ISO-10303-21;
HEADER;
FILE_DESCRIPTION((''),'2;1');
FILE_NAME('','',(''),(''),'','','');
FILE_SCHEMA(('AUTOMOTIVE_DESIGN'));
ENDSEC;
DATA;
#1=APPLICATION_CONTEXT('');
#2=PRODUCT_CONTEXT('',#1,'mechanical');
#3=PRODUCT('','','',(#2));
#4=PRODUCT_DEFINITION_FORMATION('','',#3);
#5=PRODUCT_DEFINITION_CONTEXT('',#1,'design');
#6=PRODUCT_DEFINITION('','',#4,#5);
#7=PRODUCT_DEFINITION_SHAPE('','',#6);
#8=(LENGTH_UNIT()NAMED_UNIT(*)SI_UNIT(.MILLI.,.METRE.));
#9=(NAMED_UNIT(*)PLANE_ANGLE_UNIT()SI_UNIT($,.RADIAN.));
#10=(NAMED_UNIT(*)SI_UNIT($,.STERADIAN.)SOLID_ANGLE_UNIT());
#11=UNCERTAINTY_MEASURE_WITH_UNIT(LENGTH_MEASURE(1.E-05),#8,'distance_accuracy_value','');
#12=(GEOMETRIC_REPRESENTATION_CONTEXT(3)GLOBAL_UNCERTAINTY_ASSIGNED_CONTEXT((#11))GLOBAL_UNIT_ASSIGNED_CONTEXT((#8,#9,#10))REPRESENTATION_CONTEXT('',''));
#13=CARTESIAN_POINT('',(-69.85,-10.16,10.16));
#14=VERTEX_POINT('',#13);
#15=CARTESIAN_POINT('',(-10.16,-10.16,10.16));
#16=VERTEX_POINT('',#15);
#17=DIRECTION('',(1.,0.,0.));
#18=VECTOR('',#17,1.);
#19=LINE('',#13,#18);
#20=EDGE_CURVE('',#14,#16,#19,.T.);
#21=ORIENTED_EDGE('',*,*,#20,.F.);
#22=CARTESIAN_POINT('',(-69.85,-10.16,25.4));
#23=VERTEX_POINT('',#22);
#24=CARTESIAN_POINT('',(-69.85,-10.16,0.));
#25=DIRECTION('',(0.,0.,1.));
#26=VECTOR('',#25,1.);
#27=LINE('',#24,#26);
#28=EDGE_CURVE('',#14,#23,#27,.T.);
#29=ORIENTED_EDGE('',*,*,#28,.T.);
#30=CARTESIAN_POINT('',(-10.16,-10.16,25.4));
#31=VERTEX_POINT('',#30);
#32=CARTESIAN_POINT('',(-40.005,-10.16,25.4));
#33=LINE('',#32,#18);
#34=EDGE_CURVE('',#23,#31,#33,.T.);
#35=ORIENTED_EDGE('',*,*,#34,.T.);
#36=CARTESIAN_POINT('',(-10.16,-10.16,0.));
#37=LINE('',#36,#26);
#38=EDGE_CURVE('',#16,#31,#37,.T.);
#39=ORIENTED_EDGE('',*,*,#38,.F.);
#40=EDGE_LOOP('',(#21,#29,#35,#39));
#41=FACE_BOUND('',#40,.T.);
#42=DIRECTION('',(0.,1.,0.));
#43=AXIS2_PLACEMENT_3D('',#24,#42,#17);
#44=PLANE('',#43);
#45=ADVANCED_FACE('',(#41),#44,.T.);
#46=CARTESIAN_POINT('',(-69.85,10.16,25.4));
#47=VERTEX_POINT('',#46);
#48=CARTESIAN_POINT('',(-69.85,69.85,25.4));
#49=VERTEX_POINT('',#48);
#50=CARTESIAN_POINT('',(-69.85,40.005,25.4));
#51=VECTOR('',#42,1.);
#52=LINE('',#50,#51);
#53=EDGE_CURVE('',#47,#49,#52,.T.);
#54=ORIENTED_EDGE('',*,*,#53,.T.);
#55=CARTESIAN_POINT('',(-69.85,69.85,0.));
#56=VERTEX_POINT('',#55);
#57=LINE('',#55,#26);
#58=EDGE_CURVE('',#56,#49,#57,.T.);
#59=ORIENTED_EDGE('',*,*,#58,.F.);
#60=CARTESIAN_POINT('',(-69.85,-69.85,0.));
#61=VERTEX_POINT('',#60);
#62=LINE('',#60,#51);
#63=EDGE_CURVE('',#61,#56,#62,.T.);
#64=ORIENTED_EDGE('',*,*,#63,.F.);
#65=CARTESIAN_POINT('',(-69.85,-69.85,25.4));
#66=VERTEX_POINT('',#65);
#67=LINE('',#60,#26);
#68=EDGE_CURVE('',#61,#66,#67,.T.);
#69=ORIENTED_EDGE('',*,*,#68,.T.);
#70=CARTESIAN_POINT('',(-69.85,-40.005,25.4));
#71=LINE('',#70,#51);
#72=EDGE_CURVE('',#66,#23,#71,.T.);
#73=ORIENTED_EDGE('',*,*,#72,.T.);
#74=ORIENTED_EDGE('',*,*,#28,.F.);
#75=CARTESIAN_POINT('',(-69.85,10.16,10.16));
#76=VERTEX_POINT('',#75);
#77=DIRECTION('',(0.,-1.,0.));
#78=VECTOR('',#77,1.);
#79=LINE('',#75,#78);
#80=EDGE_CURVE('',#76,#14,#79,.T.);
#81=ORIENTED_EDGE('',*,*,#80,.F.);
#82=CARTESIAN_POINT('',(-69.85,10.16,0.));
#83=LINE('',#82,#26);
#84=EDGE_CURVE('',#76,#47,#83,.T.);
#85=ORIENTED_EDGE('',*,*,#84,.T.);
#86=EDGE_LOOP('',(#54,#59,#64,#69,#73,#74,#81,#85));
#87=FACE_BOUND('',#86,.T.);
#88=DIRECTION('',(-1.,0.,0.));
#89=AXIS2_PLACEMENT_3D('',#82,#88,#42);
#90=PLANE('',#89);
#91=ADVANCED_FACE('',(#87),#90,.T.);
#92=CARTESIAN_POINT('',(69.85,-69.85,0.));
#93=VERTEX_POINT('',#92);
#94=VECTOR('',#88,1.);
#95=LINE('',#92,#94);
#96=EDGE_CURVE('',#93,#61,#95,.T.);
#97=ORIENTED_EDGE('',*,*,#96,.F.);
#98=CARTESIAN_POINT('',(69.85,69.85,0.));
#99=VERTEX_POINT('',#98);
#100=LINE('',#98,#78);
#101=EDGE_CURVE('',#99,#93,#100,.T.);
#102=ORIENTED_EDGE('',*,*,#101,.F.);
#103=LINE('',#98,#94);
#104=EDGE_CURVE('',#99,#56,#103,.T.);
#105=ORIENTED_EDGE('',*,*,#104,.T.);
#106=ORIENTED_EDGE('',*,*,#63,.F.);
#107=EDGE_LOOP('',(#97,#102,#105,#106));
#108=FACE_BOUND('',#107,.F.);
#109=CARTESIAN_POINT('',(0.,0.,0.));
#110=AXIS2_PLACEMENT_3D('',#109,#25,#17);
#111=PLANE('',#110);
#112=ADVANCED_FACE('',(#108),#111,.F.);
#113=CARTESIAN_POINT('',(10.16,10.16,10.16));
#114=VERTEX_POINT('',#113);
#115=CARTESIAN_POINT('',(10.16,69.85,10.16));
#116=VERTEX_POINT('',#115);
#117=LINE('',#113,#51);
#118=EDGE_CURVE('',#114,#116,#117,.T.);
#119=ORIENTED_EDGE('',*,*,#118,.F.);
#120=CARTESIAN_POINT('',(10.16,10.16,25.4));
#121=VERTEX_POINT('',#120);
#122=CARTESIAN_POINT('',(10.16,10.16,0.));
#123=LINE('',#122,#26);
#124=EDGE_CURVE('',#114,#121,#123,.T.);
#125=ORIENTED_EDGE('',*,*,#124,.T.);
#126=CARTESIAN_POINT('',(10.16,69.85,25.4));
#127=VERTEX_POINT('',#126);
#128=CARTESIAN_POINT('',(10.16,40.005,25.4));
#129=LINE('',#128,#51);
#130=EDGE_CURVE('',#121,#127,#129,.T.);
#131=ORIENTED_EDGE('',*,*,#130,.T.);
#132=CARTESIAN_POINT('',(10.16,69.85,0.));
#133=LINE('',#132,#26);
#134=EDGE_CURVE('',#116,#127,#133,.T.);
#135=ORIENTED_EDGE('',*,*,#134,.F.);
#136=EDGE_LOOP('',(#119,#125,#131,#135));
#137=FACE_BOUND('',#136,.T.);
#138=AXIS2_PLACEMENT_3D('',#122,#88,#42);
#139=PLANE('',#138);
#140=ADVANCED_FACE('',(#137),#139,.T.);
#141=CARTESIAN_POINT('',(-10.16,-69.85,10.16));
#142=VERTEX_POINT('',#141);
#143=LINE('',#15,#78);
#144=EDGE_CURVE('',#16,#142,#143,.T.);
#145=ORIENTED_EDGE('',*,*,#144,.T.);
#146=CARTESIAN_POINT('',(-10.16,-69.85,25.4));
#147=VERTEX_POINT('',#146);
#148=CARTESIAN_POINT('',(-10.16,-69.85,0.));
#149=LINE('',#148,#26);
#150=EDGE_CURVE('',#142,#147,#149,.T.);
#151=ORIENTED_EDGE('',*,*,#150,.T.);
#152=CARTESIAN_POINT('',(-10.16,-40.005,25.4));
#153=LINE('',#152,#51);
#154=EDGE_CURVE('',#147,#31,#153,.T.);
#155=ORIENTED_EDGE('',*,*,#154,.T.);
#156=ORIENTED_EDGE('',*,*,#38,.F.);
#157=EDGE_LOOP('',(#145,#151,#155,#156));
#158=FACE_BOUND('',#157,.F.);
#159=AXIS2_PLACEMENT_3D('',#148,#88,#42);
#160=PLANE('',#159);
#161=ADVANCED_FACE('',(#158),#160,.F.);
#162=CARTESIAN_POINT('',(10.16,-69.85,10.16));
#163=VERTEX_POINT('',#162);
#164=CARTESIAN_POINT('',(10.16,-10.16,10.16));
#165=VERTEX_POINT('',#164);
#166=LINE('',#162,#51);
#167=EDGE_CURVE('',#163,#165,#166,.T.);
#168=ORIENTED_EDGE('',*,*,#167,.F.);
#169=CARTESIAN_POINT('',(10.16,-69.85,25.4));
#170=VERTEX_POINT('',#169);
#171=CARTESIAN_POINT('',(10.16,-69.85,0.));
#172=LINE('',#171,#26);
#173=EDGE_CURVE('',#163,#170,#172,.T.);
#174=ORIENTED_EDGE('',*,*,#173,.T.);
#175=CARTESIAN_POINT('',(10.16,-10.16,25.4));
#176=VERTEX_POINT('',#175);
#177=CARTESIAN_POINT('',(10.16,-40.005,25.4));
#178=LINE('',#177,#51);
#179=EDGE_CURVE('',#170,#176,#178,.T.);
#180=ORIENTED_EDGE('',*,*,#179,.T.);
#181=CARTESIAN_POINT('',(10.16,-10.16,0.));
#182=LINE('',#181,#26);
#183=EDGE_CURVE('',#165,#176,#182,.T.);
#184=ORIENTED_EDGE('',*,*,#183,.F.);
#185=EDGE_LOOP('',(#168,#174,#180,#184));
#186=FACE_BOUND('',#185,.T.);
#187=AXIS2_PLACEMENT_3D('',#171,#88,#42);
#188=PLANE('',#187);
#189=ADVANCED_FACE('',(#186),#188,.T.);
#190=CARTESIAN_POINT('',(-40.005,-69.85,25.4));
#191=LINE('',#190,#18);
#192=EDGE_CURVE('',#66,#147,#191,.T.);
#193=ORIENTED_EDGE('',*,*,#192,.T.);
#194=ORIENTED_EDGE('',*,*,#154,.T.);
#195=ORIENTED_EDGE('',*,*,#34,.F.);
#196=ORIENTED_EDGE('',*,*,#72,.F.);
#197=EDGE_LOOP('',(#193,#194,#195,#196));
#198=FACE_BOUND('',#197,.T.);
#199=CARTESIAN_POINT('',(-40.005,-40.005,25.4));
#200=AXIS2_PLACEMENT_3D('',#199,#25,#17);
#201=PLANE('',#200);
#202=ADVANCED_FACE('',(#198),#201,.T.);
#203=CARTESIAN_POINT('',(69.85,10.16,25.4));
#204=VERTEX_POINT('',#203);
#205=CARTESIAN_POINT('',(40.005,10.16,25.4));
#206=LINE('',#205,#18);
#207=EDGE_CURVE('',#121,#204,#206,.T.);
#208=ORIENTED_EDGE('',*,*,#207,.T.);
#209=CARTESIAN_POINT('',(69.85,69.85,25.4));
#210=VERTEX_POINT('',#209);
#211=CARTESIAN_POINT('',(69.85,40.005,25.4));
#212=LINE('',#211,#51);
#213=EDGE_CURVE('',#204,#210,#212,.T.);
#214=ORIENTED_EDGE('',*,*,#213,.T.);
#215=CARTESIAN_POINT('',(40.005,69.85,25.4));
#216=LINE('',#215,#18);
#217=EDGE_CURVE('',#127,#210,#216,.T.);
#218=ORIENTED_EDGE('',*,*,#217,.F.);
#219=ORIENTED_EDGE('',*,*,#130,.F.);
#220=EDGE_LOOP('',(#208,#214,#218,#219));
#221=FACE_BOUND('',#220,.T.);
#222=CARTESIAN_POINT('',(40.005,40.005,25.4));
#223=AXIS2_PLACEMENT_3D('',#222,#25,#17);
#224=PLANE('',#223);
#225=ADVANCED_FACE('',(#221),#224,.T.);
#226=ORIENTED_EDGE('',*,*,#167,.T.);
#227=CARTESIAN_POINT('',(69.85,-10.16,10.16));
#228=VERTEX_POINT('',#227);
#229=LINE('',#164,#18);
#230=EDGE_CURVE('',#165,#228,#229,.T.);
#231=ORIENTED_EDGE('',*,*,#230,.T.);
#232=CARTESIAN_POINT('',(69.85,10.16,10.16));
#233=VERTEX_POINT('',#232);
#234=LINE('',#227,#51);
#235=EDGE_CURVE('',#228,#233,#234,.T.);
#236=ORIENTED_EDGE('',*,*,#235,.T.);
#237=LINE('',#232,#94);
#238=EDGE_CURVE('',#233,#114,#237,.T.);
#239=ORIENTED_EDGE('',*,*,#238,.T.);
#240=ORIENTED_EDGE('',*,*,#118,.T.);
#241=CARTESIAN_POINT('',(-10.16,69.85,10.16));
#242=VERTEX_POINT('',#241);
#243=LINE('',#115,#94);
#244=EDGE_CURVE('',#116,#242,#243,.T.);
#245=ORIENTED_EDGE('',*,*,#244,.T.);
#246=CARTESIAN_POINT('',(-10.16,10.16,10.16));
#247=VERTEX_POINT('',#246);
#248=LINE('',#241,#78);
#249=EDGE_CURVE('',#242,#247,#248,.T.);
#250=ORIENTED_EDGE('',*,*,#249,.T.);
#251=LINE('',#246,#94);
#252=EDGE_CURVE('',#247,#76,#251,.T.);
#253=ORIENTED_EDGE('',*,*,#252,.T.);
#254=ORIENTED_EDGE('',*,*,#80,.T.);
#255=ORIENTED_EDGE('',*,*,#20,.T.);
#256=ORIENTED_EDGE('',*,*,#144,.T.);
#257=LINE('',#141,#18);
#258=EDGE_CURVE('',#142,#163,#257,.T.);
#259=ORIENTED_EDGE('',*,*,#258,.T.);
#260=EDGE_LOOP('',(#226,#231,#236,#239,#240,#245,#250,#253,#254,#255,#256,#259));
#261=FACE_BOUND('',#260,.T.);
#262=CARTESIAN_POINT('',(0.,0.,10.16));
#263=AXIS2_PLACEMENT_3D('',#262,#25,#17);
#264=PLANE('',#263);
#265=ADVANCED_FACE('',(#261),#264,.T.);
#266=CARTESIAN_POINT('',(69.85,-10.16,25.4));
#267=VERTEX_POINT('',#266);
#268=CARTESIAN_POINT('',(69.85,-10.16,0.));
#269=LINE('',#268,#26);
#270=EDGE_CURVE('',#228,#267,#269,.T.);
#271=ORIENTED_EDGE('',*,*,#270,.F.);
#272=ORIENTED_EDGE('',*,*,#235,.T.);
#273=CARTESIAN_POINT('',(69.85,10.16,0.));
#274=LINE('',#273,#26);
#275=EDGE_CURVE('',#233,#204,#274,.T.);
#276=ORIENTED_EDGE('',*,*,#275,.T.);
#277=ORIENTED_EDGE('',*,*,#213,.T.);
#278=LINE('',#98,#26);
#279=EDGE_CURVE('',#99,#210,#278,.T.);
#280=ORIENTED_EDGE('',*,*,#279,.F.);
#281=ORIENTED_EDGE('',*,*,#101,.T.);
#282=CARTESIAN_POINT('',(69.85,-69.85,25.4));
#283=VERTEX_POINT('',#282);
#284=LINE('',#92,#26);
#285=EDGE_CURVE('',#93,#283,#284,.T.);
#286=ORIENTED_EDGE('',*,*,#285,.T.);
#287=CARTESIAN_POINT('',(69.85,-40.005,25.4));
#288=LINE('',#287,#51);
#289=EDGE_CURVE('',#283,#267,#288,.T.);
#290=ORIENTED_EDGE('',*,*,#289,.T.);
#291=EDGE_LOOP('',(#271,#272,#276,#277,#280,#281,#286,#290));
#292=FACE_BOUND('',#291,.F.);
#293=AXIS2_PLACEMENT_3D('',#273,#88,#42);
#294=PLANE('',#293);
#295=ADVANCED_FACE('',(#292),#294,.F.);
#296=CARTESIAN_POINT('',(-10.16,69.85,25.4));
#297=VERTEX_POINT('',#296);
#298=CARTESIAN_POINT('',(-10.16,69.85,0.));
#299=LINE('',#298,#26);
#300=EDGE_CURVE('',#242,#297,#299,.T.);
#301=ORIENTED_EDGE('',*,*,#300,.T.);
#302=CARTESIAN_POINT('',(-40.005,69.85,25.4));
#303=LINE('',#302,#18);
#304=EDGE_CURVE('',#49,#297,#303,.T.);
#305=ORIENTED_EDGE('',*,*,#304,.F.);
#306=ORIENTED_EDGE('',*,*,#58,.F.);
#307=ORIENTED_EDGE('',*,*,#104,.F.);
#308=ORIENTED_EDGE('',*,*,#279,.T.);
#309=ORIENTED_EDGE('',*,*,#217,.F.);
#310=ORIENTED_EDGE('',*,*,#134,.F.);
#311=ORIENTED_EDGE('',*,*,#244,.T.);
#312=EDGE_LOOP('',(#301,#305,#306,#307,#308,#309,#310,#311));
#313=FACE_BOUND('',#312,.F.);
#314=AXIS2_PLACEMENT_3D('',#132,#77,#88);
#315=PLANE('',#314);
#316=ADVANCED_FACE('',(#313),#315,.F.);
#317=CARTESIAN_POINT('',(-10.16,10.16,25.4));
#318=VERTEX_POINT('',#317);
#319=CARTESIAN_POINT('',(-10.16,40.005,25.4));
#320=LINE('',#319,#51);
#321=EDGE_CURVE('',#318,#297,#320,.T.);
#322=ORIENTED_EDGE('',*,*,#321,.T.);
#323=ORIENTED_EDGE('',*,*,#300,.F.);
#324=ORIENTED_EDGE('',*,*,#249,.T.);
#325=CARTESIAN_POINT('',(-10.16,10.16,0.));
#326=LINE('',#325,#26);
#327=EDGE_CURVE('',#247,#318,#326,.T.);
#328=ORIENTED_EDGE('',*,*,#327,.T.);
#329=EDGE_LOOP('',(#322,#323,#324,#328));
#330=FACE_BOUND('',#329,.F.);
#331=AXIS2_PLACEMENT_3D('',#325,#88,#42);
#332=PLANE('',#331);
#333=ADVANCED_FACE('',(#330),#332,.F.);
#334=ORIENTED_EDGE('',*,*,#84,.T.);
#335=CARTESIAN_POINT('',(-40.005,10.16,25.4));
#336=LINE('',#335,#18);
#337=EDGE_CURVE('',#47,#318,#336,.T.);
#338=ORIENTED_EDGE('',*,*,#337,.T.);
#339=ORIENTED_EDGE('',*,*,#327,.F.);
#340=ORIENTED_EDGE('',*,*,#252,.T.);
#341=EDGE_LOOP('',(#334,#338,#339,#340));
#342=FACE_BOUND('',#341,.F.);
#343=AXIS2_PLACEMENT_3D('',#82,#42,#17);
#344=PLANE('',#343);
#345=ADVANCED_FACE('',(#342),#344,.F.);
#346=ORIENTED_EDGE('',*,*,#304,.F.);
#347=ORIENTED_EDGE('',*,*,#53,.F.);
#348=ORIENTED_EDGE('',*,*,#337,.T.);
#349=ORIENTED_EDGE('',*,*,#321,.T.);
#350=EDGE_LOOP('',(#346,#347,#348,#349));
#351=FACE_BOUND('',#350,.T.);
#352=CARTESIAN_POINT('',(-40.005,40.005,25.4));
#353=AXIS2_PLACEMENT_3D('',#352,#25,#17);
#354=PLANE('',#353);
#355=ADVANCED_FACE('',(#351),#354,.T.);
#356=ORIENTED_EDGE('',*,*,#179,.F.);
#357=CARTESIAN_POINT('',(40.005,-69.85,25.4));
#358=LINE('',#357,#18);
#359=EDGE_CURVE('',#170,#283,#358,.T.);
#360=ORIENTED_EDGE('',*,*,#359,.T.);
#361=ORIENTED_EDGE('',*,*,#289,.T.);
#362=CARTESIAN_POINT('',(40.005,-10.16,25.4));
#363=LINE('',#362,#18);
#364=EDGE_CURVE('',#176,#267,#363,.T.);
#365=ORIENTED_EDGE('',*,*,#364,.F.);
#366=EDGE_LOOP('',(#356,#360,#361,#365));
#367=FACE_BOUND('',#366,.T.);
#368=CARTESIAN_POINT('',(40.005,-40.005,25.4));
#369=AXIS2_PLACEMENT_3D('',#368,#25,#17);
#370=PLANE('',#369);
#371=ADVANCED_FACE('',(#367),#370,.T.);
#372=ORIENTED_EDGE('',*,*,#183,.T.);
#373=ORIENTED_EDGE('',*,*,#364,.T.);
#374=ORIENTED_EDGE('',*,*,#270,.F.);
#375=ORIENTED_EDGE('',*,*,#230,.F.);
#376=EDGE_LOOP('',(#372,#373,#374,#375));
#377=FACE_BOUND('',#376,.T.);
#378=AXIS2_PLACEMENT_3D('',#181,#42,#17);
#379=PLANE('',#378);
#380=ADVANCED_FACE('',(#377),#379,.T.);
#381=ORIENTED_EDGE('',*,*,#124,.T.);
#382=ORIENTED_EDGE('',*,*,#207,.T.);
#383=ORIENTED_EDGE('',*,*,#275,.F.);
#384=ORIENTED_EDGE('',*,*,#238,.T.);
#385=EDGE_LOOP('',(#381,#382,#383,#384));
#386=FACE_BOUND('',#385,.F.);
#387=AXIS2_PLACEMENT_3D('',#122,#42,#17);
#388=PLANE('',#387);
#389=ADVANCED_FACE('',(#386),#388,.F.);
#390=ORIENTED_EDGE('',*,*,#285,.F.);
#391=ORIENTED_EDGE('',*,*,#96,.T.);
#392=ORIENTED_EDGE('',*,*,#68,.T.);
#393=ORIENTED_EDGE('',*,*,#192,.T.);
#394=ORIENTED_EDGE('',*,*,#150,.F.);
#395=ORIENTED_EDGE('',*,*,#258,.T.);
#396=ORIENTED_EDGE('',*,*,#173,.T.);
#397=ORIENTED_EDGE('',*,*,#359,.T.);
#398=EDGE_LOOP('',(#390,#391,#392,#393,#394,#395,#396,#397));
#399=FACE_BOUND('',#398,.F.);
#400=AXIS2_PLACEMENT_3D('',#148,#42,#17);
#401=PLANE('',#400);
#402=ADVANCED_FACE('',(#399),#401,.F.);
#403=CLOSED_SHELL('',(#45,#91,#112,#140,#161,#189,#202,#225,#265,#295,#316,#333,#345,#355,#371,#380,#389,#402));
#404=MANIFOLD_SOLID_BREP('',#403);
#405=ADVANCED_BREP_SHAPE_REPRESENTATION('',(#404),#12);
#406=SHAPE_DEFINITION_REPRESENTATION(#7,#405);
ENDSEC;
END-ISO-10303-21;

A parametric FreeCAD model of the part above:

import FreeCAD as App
import Part
import Sketcher

V = App.Vector
Q = App.Units.Quantity

doc = App.newDocument("Part")
body = doc.addObject("PartDesign::Body", "Body")

sketch1 = body.newObject("Sketcher::SketchObject", "Sketch")
sketch1.AttachmentSupport = (doc.getObject("XY_Plane"), [""])
sketch1.MapMode = "FlatFace"
sketch1.addGeometry([
    Part.LineSegment(V(10, 70, 0), V(10, 10, 0)),
    Part.LineSegment(V(10, 10, 0), V(70, 10, 0)),
    Part.LineSegment(V(70, 10, 0), V(70, 70, 0)),
    Part.LineSegment(V(70, 70, 0), V(10, 70, 0)),
], False)
sketch1.addConstraint([
    Sketcher.Constraint("Coincident", 0, 2, 1, 1),
    Sketcher.Constraint("Coincident", 1, 2, 2, 1),
    Sketcher.Constraint("Coincident", 2, 2, 3, 1),
    Sketcher.Constraint("Coincident", 3, 2, 0, 1),
    Sketcher.Constraint("Vertical", 0),
    Sketcher.Constraint("Horizontal", 1),
    Sketcher.Constraint("Vertical", 2),
    Sketcher.Constraint("Horizontal", 3),
    Sketcher.Constraint("Equal", 3, 0),
    Sketcher.Constraint("DistanceX", 1, 1, 1, 2, Q("2.35 in")),
    Sketcher.Constraint("DistanceX", -1, 1, 0, 2, Q("0.4 in")),
    Sketcher.Constraint("DistanceY", -1, 1, 0, 2, Q("0.4 in")),
])
pad1 = body.newObject("PartDesign::Pad", "Pad")
pad1.Profile = sketch1
pad1.Length = Q("1 in")
body2 = doc.addObject("PartDesign::Body", "Body001")

sketch2 = body2.newObject("Sketcher::SketchObject", "Sketch001")
sketch2.AttachmentSupport = (doc.getObject("XY_Plane001"), [""])
sketch2.MapMode = "FlatFace"
sketch2.addGeometry([
    Part.LineSegment(V(10, -10, 0), V(10, -70, 0)),
    Part.LineSegment(V(10, -70, 0), V(70, -70, 0)),
    Part.LineSegment(V(70, -70, 0), V(70, -10, 0)),
    Part.LineSegment(V(70, -10, 0), V(10, -10, 0)),
], False)
sketch2.addConstraint([
    Sketcher.Constraint("Coincident", 0, 2, 1, 1),
    Sketcher.Constraint("Coincident", 1, 2, 2, 1),
    Sketcher.Constraint("Coincident", 2, 2, 3, 1),
    Sketcher.Constraint("Coincident", 3, 2, 0, 1),
    Sketcher.Constraint("Vertical", 0),
    Sketcher.Constraint("Horizontal", 1),
    Sketcher.Constraint("Vertical", 2),
    Sketcher.Constraint("Horizontal", 3),
    Sketcher.Constraint("Equal", 3, 0),
    Sketcher.Constraint("DistanceX", 1, 1, 1, 2, Q("2.35 in")),
    Sketcher.Constraint("DistanceX", -1, 1, 0, 2, Q("0.4 in")),
    Sketcher.Constraint("DistanceY", 2, 2, -1, 1, Q("0.4 in")),
])
pad2 = body2.newObject("PartDesign::Pad", "Pad001")
pad2.Profile = sketch2
pad2.Length = Q("1 in")
body3 = doc.addObject("PartDesign::Body", "Body002")

sketch3 = body3.newObject("Sketcher::SketchObject", "Sketch002")
sketch3.AttachmentSupport = (doc.getObject("XY_Plane002"), [""])
sketch3.MapMode = "FlatFace"
sketch3.addGeometry([
    Part.LineSegment(V(-70, -10, 0), V(-70, -70, 0)),
    Part.LineSegment(V(-70, -70, 0), V(-10, -70, 0)),
    Part.LineSegment(V(-10, -70, 0), V(-10, -10, 0)),
    Part.LineSegment(V(-10, -10, 0), V(-70, -10, 0)),
], False)
sketch3.addConstraint([
    Sketcher.Constraint("Coincident", 0, 2, 1, 1),
    Sketcher.Constraint("Coincident", 1, 2, 2, 1),
    Sketcher.Constraint("Coincident", 2, 2, 3, 1),
    Sketcher.Constraint("Coincident", 3, 2, 0, 1),
    Sketcher.Constraint("Vertical", 0),
    Sketcher.Constraint("Horizontal", 1),
    Sketcher.Constraint("Vertical", 2),
    Sketcher.Constraint("Horizontal", 3),
    Sketcher.Constraint("Equal", 3, 0),
    Sketcher.Constraint("DistanceX", 1, 1, 1, 2, Q("2.35 in")),
    Sketcher.Constraint("DistanceX", 1, 2, -1, 1, Q("0.4 in")),
    Sketcher.Constraint("DistanceY", 2, 2, -1, 1, Q("0.4 in")),
])
pad3 = body3.newObject("PartDesign::Pad", "Pad002")
pad3.Profile = sketch3
pad3.Length = Q("1 in")
body4 = doc.addObject("PartDesign::Body", "Body003")

sketch4 = body4.newObject("Sketcher::SketchObject", "Sketch003")
sketch4.AttachmentSupport = (doc.getObject("XY_Plane003"), [""])
sketch4.MapMode = "FlatFace"
sketch4.addGeometry([
    Part.LineSegment(V(-70, 70, 0), V(-70, 10, 0)),
    Part.LineSegment(V(-70, 10, 0), V(-10, 10, 0)),
    Part.LineSegment(V(-10, 10, 0), V(-10, 70, 0)),
    Part.LineSegment(V(-10, 70, 0), V(-70, 70, 0)),
], False)
sketch4.addConstraint([
    Sketcher.Constraint("Coincident", 0, 2, 1, 1),
    Sketcher.Constraint("Coincident", 1, 2, 2, 1),
    Sketcher.Constraint("Coincident", 2, 2, 3, 1),
    Sketcher.Constraint("Coincident", 3, 2, 0, 1),
    Sketcher.Constraint("Vertical", 0),
    Sketcher.Constraint("Horizontal", 1),
    Sketcher.Constraint("Vertical", 2),
    Sketcher.Constraint("Horizontal", 3),
    Sketcher.Constraint("Equal", 3, 0),
    Sketcher.Constraint("DistanceX", 1, 1, 1, 2, Q("2.35 in")),
    Sketcher.Constraint("DistanceY", -1, 1, 0, 2, Q("0.4 in")),
    Sketcher.Constraint("DistanceX", 1, 2, -1, 1, Q("0.4 in")),
])
pad4 = body4.newObject("PartDesign::Pad", "Pad003")
pad4.Profile = sketch4
pad4.Length = Q("1 in")
body.AllowCompound = True
doc.recompute()

boolean = body.newObject("PartDesign::Boolean", "Boolean")
boolean.Type = "Fuse"
boolean.addObjects([body2])
doc.recompute()

boolean2 = body.newObject("PartDesign::Boolean", "Boolean001")
boolean2.Type = "Fuse"
boolean2.addObjects([body3])
doc.recompute()

boolean3 = body.newObject("PartDesign::Boolean", "Boolean002")
boolean3.Type = "Fuse"
boolean3.addObjects([body4])

sketch5 = body.newObject("Sketcher::SketchObject", "Sketch004")
sketch5.AttachmentSupport = (doc.getObject("XY_Plane"), [""])
sketch5.MapMode = "FlatFace"
sketch5.addGeometry([
    Part.LineSegment(V(10, 70, 0), V(-10, 70, 0)),
    Part.LineSegment(V(-10, 70, 0), V(-10, 10, 0)),
    Part.LineSegment(V(-10, 10, 0), V(-70, 10, 0)),
    Part.LineSegment(V(-70, 10, 0), V(-70, -10, 0)),
    Part.LineSegment(V(-70, -10, 0), V(-10, -10, 0)),
    Part.LineSegment(V(-10, -10, 0), V(-10, -70, 0)),
    Part.LineSegment(V(-10, -70, 0), V(10, -70, 0)),
    Part.LineSegment(V(10, -70, 0), V(10, -10, 0)),
    Part.LineSegment(V(10, -10, 0), V(70, -10, 0)),
    Part.LineSegment(V(70, -10, 0), V(70, 10, 0)),
    Part.LineSegment(V(70, 10, 0), V(10, 10, 0)),
    Part.LineSegment(V(10, 10, 0), V(10, 70, 0)),
], False)
sketch5.addConstraint([
    Sketcher.Constraint("Coincident", 0, 2, 1, 1),
    Sketcher.Constraint("Coincident", 1, 2, 2, 1),
    Sketcher.Constraint("Coincident", 2, 2, 3, 1),
    Sketcher.Constraint("Coincident", 3, 2, 4, 1),
    Sketcher.Constraint("Coincident", 4, 2, 5, 1),
    Sketcher.Constraint("Coincident", 5, 2, 6, 1),
    Sketcher.Constraint("Coincident", 6, 2, 7, 1),
    Sketcher.Constraint("Coincident", 7, 2, 8, 1),
    Sketcher.Constraint("Coincident", 8, 2, 9, 1),
    Sketcher.Constraint("Coincident", 9, 2, 10, 1),
    Sketcher.Constraint("Coincident", 10, 2, 11, 1),
    Sketcher.Constraint("Coincident", 11, 2, 0, 1),
    Sketcher.Constraint("Horizontal", 0),
    Sketcher.Constraint("Vertical", 1),
    Sketcher.Constraint("Horizontal", 2),
    Sketcher.Constraint("Vertical", 3),
    Sketcher.Constraint("Horizontal", 4),
    Sketcher.Constraint("Vertical", 5),
    Sketcher.Constraint("Horizontal", 6),
    Sketcher.Constraint("Vertical", 7),
    Sketcher.Constraint("Horizontal", 8),
    Sketcher.Constraint("Vertical", 9),
    Sketcher.Constraint("Horizontal", 10),
    Sketcher.Constraint("Vertical", 11),
    Sketcher.Constraint("Symmetric", 0, 2, 6, 2, -1, 1),
    Sketcher.Constraint("Symmetric", 2, 2, 8, 2, -1, 1),
    Sketcher.Constraint("Symmetric", 4, 2, 10, 2, -1, 1),
    Sketcher.Constraint("Symmetric", 4, 2, 7, 2, -2),
    Sketcher.Constraint("Equal", 10, 1),
    Sketcher.Constraint("Equal", 6, 3),
    Sketcher.Constraint("DistanceX", 0, 2, 0, 1, Q("0.8 in")),
    Sketcher.Constraint("DistanceX", 2, 2, 2, 1, Q("2.35 in")),
])
pad5 = body.newObject("PartDesign::Pad", "Pad004")
pad5.Profile = sketch5
pad5.Length = Q("0.4 in")

doc.recompute()
